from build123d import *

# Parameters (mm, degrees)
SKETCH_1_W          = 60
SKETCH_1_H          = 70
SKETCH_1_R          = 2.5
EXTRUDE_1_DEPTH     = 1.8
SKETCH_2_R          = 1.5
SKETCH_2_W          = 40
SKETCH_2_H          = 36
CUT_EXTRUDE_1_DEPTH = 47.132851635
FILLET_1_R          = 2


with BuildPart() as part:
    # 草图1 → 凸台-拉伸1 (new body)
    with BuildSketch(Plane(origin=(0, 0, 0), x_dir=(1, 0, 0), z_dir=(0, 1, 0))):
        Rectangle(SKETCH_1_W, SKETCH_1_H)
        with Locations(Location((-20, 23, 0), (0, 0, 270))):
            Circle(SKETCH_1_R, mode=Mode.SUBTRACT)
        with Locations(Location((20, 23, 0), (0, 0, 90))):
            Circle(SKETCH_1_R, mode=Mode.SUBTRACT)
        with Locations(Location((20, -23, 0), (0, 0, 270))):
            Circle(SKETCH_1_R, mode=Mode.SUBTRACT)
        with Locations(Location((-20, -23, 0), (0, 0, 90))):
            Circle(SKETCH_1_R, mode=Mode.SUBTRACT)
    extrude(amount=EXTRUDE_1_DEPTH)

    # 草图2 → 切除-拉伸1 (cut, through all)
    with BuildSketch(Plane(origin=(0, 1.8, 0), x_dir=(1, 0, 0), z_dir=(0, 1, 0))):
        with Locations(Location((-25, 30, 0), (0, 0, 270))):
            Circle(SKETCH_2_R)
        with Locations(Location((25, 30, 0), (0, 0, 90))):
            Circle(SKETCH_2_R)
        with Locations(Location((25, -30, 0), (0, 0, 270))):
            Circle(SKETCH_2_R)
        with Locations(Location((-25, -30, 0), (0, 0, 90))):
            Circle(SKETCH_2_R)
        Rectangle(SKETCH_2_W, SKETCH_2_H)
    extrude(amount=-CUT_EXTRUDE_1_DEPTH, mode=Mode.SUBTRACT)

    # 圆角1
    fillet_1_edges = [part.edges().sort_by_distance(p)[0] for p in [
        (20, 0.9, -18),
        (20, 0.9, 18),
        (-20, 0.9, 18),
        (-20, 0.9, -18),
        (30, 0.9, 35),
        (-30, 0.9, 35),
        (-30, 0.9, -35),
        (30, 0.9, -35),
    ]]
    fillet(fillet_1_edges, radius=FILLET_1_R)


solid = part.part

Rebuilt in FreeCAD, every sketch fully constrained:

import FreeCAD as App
import Part
import Sketcher
Q = App.Units.Quantity


def edges_at(feature, points):
    """Names of the edges that pass closest to the given points."""
    edges = feature.Shape.Edges
    near = lambda p: min(range(len(edges)), key=lambda i: edges[i].distToShape(Part.Vertex(*p))[0])
    return sorted({f"Edge{near(p) + 1}" for p in points})

doc = App.newDocument("Part")
body = doc.addObject("PartDesign::Body", "Body")

# Sketch on XZ plane
sketch1 = body.newObject("Sketcher::SketchObject", "Sketch")
sketch1.AttachmentSupport = (doc.getObject("XZ_Plane"), [""])
sketch1.MapMode = "FlatFace"
sketch1.addGeometry(Part.LineSegment(App.Vector(-30, -35, 0), App.Vector(-30, 35, 0)), False)
sketch1.addGeometry(Part.LineSegment(App.Vector(-30, 35, 0), App.Vector(30, 35, 0)), False)
sketch1.addGeometry(Part.LineSegment(App.Vector(30, 35, 0), App.Vector(30, -35, 0)), False)
sketch1.addGeometry(Part.LineSegment(App.Vector(30, -35, 0), App.Vector(-30, -35, 0)), False)
sketch1.addGeometry(Part.Circle(App.Vector(-20, 23, 0), App.Vector(0, 0, 1), 2.5), False)
sketch1.addGeometry(Part.Circle(App.Vector(20, 23, 0), App.Vector(0, 0, 1), 2.5), False)
sketch1.addGeometry(Part.Circle(App.Vector(-20, -23, 0), App.Vector(0, 0, 1), 2.5), False)
sketch1.addGeometry(Part.Circle(App.Vector(20, -23, 0), App.Vector(0, 0, 1), 2.5), False)
sketch1.addConstraint(Sketcher.Constraint("Coincident", 0, 2, 1, 1))
sketch1.addConstraint(Sketcher.Constraint("Coincident", 1, 2, 2, 1))
sketch1.addConstraint(Sketcher.Constraint("Coincident", 2, 2, 3, 1))
sketch1.addConstraint(Sketcher.Constraint("Coincident", 3, 2, 0, 1))
sketch1.addConstraint(Sketcher.Constraint("Vertical", 0))
sketch1.addConstraint(Sketcher.Constraint("Horizontal", 1))
sketch1.addConstraint(Sketcher.Constraint("Vertical", 2))
sketch1.addConstraint(Sketcher.Constraint("Horizontal", 3))
sketch1.addConstraint(Sketcher.Constraint("Equal", 4, 5))
sketch1.addConstraint(Sketcher.Constraint("Equal", 5, 6))
sketch1.addConstraint(Sketcher.Constraint("Equal", 6, 7))
sketch1.addConstraint(Sketcher.Constraint("Symmetric", 5, 3, 6, 3, -1, 1))
sketch1.addConstraint(Sketcher.Constraint("Symmetric", 4, 3, 7, 3, -1, 1))
sketch1.addConstraint(Sketcher.Constraint("Symmetric", 0, 2, 2, 2, -1, 1))
sketch1.addConstraint(Sketcher.Constraint("Symmetric", 4, 3, 5, 3, -2))
sketch1.addConstraint(Sketcher.Constraint("Diameter", 4, Q("5 mm")))
sketch1.addConstraint(Sketcher.Constraint("DistanceX", 1, 1, 1, 2, Q("60 mm")))
sketch1.addConstraint(Sketcher.Constraint("DistanceY", 0, 1, 0, 2, Q("70 mm")))
sketch1.addConstraint(Sketcher.Constraint("DistanceX", 4, 3, -1, 1, Q("20 mm")))
sketch1.addConstraint(Sketcher.Constraint("DistanceY", -1, 1, 4, 3, Q("23 mm")))
pad1 = body.newObject("PartDesign::Pad", "Pad")
pad1.Profile = sketch1
pad1.Length = 1.8
pad1.Reversed = True

# Sketch on XZ plane
sketch2 = body.newObject("Sketcher::SketchObject", "Sketch001")
sketch2.AttachmentSupport = (doc.getObject("XZ_Plane"), [""])
sketch2.MapMode = "FlatFace"
sketch2.AttachmentOffset = App.Placement(App.Vector(0, 0, -1.8), App.Rotation())
sketch2.addGeometry(Part.Circle(App.Vector(-25, -30, 0), App.Vector(0, 0, 1), 1.5), False)
sketch2.addGeometry(Part.Circle(App.Vector(25, -30, 0), App.Vector(0, 0, 1), 1.5), False)
sketch2.addGeometry(Part.Circle(App.Vector(25, 30, 0), App.Vector(0, 0, 1), 1.5), False)
sketch2.addGeometry(Part.Circle(App.Vector(-25, 30, 0), App.Vector(0, 0, 1), 1.5), False)
sketch2.addGeometry(Part.LineSegment(App.Vector(-20, -18, 0), App.Vector(-20, 18, 0)), False)
sketch2.addGeometry(Part.LineSegment(App.Vector(-20, 18, 0), App.Vector(20, 18, 0)), False)
sketch2.addGeometry(Part.LineSegment(App.Vector(20, 18, 0), App.Vector(20, -18, 0)), False)
sketch2.addGeometry(Part.LineSegment(App.Vector(20, -18, 0), App.Vector(-20, -18, 0)), False)
sketch2.addConstraint(Sketcher.Constraint("Coincident", 4, 2, 5, 1))
sketch2.addConstraint(Sketcher.Constraint("Coincident", 5, 2, 6, 1))
sketch2.addConstraint(Sketcher.Constraint("Coincident", 6, 2, 7, 1))
sketch2.addConstraint(Sketcher.Constraint("Coincident", 7, 2, 4, 1))
sketch2.addConstraint(Sketcher.Constraint("Vertical", 4))
sketch2.addConstraint(Sketcher.Constraint("Horizontal", 5))
sketch2.addConstraint(Sketcher.Constraint("Vertical", 6))
sketch2.addConstraint(Sketcher.Constraint("Horizontal", 7))
sketch2.addConstraint(Sketcher.Constraint("Equal", 0, 1))
sketch2.addConstraint(Sketcher.Constraint("Equal", 1, 2))
sketch2.addConstraint(Sketcher.Constraint("Equal", 2, 3))
sketch2.addConstraint(Sketcher.Constraint("Symmetric", 0, 3, 2, 3, -1, 1))
sketch2.addConstraint(Sketcher.Constraint("Symmetric", 1, 3, 3, 3, -1, 1))
sketch2.addConstraint(Sketcher.Constraint("Symmetric", 4, 2, 6, 2, -1, 1))
sketch2.addConstraint(Sketcher.Constraint("Symmetric", 0, 3, 1, 3, -2))
sketch2.addConstraint(Sketcher.Constraint("Diameter", 0, Q("3 mm")))
sketch2.addConstraint(Sketcher.Constraint("DistanceX", 5, 1, 5, 2, Q("40 mm")))
sketch2.addConstraint(Sketcher.Constraint("DistanceY", 4, 1, 4, 2, Q("36 mm")))
sketch2.addConstraint(Sketcher.Constraint("DistanceX", 0, 3, -1, 1, Q("25 mm")))
sketch2.addConstraint(Sketcher.Constraint("DistanceY", 0, 3, -1, 1, Q("30 mm")))
pocket1 = body.newObject("PartDesign::Pocket", "Pocket")
pocket1.Profile = sketch2
pocket1.Type = "ThroughAll"
pocket1.Reversed = True
doc.recompute()

fillet = body.newObject("PartDesign::Fillet", "Fillet")
fillet.Base = (pocket1, edges_at(pocket1, [
    (20, 0.9, -18),
    (20, 0.9, 18),
    (-20, 0.9, 18),
    (-20, 0.9, -18),
    (30, 0.9, 35),
    (-30, 0.9, 35),
    (-30, 0.9, -35),
    (30, 0.9, -35),
]))
fillet.Radius = 2

doc.recompute()
